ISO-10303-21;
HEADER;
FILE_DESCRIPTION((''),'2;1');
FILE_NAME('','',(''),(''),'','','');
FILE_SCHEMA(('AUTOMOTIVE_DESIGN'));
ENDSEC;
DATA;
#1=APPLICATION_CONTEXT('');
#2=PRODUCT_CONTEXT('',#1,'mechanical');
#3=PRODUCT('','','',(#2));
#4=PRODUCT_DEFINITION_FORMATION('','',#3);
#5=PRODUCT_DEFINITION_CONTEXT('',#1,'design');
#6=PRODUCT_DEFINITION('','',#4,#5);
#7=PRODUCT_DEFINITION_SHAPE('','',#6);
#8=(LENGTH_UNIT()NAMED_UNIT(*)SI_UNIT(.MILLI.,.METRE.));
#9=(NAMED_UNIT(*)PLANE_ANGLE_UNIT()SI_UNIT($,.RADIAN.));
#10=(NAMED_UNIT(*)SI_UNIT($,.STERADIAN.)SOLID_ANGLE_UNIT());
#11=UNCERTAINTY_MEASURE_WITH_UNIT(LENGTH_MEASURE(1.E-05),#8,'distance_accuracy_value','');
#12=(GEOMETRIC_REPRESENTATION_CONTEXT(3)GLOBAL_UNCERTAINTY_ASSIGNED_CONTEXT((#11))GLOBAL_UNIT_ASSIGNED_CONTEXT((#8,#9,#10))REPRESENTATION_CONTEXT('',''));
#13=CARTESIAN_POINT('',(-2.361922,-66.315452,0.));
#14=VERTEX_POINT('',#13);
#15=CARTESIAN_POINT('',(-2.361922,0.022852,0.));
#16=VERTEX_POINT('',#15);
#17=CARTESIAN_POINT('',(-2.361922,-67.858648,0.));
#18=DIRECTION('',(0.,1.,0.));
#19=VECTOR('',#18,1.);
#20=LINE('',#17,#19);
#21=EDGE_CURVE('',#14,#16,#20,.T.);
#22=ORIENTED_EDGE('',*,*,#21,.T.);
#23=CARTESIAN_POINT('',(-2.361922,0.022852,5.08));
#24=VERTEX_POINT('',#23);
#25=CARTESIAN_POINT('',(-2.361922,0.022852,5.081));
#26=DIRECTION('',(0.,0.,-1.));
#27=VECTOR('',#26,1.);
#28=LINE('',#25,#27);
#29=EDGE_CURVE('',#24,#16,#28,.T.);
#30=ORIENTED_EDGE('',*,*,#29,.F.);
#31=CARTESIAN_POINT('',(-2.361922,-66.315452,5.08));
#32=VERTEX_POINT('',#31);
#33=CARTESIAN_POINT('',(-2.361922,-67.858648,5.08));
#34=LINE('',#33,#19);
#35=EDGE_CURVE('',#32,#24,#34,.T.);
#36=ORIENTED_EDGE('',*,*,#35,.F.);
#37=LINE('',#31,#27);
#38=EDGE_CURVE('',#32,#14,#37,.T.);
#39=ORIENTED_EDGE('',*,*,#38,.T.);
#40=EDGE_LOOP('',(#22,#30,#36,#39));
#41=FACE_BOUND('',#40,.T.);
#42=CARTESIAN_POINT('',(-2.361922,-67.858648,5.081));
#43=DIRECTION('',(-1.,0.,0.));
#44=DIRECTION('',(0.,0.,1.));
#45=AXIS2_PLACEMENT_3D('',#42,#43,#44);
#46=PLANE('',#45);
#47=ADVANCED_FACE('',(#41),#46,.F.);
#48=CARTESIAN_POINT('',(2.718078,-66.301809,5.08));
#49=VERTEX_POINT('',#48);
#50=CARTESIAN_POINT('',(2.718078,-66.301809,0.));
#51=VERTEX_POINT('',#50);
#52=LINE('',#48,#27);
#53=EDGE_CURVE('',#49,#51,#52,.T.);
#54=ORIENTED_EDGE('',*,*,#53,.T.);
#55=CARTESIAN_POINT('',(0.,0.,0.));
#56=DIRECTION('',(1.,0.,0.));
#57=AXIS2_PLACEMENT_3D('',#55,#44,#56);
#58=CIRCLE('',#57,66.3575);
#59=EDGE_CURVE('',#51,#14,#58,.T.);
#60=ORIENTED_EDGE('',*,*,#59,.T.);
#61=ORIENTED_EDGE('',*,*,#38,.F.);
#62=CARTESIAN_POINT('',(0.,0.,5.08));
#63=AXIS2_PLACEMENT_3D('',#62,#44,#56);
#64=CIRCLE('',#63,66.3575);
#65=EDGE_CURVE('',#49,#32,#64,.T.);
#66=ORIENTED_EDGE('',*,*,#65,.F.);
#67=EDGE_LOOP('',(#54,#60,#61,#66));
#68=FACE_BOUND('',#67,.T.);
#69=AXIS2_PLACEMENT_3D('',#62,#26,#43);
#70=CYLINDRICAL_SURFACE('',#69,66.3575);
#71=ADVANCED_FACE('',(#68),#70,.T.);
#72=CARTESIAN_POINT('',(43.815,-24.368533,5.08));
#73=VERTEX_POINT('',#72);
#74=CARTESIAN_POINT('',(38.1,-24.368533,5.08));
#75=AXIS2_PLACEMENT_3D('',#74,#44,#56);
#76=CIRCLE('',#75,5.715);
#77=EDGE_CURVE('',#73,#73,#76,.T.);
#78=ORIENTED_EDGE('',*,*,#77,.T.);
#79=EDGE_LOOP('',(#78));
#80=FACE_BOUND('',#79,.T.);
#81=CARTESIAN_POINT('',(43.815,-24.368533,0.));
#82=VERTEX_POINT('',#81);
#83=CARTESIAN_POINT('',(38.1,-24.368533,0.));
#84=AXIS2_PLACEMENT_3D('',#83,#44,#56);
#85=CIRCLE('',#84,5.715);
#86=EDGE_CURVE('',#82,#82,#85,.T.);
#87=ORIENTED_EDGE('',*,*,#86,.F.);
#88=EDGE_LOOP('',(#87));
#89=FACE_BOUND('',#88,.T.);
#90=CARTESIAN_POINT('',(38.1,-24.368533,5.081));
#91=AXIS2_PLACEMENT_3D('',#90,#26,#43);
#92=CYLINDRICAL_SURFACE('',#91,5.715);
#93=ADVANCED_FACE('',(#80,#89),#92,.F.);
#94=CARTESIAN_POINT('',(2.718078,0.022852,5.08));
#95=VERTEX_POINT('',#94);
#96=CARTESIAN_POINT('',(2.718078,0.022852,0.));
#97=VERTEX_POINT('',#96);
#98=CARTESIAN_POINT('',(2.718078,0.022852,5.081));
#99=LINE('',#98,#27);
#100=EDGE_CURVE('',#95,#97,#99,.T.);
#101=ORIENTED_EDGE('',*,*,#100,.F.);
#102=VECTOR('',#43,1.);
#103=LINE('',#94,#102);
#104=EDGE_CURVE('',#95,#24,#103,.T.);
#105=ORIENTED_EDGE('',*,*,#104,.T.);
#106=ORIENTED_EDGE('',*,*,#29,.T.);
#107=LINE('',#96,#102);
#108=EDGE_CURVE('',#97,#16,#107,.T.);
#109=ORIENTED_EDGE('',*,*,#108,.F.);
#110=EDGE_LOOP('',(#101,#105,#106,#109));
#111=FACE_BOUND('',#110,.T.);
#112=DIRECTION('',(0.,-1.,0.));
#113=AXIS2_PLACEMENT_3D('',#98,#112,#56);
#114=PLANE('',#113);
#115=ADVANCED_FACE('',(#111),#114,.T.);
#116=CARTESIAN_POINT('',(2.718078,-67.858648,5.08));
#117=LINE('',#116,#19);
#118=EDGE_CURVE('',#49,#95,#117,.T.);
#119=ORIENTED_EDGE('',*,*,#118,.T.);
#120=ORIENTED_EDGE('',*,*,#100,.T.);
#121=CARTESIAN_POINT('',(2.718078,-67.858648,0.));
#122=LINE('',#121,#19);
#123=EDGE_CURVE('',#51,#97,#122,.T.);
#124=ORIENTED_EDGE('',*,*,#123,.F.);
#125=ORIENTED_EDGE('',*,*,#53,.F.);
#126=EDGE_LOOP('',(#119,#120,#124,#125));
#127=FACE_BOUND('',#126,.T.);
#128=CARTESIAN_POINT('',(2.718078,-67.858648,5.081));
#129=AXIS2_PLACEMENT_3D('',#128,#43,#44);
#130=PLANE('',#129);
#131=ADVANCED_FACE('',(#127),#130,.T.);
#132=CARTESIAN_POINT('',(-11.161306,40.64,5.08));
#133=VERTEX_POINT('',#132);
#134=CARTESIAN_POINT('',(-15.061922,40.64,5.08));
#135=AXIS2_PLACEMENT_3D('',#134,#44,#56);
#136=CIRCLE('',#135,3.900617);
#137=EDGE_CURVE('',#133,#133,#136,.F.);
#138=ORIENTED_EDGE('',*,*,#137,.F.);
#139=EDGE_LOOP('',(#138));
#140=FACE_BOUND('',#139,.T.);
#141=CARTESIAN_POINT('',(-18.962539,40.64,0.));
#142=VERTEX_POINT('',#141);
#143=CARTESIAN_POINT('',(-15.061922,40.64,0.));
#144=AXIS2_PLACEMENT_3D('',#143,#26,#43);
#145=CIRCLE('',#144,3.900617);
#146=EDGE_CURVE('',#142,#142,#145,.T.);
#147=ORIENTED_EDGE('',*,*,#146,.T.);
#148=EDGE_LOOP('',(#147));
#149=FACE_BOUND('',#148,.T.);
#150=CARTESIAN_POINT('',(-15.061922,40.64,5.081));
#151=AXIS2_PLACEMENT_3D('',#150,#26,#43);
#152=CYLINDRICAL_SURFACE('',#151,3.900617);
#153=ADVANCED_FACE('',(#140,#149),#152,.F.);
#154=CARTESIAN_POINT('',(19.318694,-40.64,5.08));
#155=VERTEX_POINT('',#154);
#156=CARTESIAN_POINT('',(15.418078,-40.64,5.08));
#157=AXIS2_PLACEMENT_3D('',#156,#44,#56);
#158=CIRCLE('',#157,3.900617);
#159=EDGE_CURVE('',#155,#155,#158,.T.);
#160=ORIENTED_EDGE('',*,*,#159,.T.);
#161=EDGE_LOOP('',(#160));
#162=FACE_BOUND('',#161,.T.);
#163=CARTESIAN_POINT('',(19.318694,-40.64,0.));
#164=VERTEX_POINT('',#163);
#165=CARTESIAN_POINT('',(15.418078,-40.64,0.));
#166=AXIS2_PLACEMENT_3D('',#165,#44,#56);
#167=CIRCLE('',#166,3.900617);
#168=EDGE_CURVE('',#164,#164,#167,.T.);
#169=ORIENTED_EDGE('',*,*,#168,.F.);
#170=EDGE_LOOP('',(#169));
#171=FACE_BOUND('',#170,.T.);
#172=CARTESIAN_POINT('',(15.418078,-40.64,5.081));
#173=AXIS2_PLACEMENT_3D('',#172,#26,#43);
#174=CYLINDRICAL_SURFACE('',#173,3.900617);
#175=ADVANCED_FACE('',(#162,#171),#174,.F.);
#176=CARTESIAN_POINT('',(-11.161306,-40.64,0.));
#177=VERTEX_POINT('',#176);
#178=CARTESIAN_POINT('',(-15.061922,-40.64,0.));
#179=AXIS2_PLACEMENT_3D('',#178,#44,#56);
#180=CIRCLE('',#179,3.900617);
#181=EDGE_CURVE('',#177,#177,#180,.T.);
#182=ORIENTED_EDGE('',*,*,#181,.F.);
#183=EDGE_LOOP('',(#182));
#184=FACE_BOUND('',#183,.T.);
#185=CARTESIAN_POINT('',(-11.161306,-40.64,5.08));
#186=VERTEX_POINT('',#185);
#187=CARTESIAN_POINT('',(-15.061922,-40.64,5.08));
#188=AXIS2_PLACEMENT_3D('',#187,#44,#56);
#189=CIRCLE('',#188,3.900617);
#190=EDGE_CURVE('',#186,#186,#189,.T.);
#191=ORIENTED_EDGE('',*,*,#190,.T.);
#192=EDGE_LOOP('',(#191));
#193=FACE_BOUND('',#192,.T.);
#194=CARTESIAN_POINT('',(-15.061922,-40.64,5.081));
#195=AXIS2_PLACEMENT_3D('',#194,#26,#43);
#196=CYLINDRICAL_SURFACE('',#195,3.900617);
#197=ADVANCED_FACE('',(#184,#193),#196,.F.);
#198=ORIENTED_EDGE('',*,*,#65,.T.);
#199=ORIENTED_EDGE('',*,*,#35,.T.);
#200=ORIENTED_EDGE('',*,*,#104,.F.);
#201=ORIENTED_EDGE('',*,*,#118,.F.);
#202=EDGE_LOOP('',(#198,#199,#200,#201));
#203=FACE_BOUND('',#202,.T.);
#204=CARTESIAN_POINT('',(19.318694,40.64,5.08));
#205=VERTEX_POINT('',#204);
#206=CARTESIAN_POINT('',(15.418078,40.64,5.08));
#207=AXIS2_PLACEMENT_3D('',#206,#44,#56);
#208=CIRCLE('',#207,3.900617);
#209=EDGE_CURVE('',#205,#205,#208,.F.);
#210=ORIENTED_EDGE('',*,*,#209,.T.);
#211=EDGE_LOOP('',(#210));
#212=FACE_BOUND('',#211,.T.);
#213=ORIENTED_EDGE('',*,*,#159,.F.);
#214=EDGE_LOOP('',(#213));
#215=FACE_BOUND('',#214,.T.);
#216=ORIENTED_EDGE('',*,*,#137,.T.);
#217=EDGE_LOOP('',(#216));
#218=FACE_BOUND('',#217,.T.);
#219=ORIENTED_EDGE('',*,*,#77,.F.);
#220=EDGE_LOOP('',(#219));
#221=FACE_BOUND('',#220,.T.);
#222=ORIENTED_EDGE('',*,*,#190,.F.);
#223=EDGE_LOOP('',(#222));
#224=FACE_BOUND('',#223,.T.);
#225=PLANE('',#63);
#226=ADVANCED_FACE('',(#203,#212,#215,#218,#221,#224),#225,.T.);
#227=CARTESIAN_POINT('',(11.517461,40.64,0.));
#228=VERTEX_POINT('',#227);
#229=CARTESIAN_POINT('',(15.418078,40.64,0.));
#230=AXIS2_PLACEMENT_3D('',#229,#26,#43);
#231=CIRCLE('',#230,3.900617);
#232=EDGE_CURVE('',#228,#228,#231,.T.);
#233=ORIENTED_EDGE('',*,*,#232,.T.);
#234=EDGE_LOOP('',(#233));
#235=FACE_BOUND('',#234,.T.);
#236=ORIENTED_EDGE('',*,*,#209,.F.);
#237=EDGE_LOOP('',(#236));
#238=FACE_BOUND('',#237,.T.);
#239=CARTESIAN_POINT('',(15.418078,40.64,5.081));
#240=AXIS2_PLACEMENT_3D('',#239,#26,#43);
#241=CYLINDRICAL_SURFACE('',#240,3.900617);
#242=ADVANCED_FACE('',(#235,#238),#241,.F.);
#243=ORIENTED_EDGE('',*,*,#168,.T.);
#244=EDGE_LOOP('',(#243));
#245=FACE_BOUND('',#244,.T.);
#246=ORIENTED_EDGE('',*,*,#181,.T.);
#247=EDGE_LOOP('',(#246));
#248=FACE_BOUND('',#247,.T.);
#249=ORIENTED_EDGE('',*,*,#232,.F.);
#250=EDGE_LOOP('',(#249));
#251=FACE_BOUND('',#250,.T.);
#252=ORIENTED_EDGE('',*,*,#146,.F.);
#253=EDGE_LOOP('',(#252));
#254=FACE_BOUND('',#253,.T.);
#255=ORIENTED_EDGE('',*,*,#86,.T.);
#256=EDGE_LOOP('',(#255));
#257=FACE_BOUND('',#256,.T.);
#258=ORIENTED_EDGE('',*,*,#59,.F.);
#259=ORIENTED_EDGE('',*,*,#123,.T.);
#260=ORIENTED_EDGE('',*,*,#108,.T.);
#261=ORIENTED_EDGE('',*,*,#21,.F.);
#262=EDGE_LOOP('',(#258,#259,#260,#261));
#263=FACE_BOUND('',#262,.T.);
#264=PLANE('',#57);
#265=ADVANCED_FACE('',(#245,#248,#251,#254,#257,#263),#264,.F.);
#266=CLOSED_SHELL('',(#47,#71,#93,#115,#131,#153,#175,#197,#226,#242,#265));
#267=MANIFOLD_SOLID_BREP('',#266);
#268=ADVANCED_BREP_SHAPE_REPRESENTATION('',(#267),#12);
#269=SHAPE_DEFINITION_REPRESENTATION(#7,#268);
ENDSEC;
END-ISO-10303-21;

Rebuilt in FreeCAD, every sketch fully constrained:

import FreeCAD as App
import Part
import Sketcher
Q = App.Units.Quantity

doc = App.newDocument("Part")
body = doc.addObject("PartDesign::Body", "Body")

# Sketch on XY plane
sketch1 = body.newObject("Sketcher::SketchObject", "Sketch")
sketch1.AttachmentSupport = (doc.getObject("XY_Plane"), [""])
sketch1.MapMode = "FlatFace"
sketch1.addGeometry(Part.Circle(App.Vector(0, 0, 0), App.Vector(0, 0, 1), 66.3575), False)
sketch1.addConstraint([
    Sketcher.Constraint("Coincident", 0, 3, -1, 1),
    Sketcher.Constraint("Diameter", 0, Q("5.225 in")),
])
pad1 = body.newObject("PartDesign::Pad", "Pad")
pad1.Profile = sketch1
pad1.Length = Q("0.2 in")

# Sketch on XY plane
sketch2 = body.newObject("Sketcher::SketchObject", "Sketch001")
sketch2.AttachmentSupport = (doc.getObject("XY_Plane"), [""])
sketch2.MapMode = "FlatFace"
sketch2.addGeometry(Part.Circle(App.Vector(-15.061922, -40.64, 0), App.Vector(0, 0, 1), 3.900617), False)
sketch2.addConstraint([
    Sketcher.Constraint("DistanceY", 0, 3, -1, 1, Q("1.6 in")),
    Sketcher.Constraint("Diameter", 0, 7.801234),
    Sketcher.Constraint("DistanceX", 0, 3, -1, 1, 15.061922),
])
pocket1 = body.newObject("PartDesign::Pocket", "Pocket")
pocket1.Profile = sketch2
pocket1.Type = "UpToFirst"
pocket1.Reversed = True

# Sketch on XY plane
sketch3 = body.newObject("Sketcher::SketchObject", "Sketch002")
sketch3.AttachmentSupport = (doc.getObject("XY_Plane"), [""])
sketch3.MapMode = "FlatFace"
sketch3.addGeometry(Part.Circle(App.Vector(15.418078, -40.64, 0), App.Vector(0, 0, 1), 3.900617), False)
sketch3.addConstraint([
    Sketcher.Constraint("DistanceY", 0, 3, -1, 1, Q("1.6 in")),
    Sketcher.Constraint("Diameter", 0, 7.801234),
    Sketcher.Constraint("DistanceX", -1, 1, 0, 3, 15.418078),
])
pocket2 = body.newObject("PartDesign::Pocket", "Pocket001")
pocket2.Profile = sketch3
pocket2.Type = "UpToFirst"
pocket2.Reversed = True

# Sketch on XY plane
sketch4 = body.newObject("Sketcher::SketchObject", "Sketch003")
sketch4.AttachmentSupport = (doc.getObject("XY_Plane"), [""])
sketch4.MapMode = "FlatFace"
sketch4.addGeometry(Part.Circle(App.Vector(15.418078, 40.64, 0), App.Vector(0, 0, 1), 3.900617), False)
sketch4.addConstraint([
    Sketcher.Constraint("DistanceY", -1, 1, 0, 3, Q("1.6 in")),
    Sketcher.Constraint("Diameter", 0, 7.801234),
    Sketcher.Constraint("DistanceX", -1, 1, 0, 3, 15.418078),
])
pocket3 = body.newObject("PartDesign::Pocket", "Pocket002")
pocket3.Profile = sketch4
pocket3.Type = "UpToFirst"
pocket3.Reversed = True

# Sketch on XY plane
sketch5 = body.newObject("Sketcher::SketchObject", "Sketch004")
sketch5.AttachmentSupport = (doc.getObject("XY_Plane"), [""])
sketch5.MapMode = "FlatFace"
sketch5.addGeometry(Part.Circle(App.Vector(-15.061922, 40.64, 0), App.Vector(0, 0, 1), 3.900617), False)
sketch5.addConstraint([
    Sketcher.Constraint("DistanceY", -1, 1, 0, 3, Q("1.6 in")),
    Sketcher.Constraint("Diameter", 0, 7.801234),
    Sketcher.Constraint("DistanceX", 0, 3, -1, 1, 15.061922),
])
pocket4 = body.newObject("PartDesign::Pocket", "Pocket003")
pocket4.Profile = sketch5
pocket4.Type = "UpToFirst"
pocket4.Reversed = True

# Sketch on XY plane
sketch6 = body.newObject("Sketcher::SketchObject", "Sketch005")
sketch6.AttachmentSupport = (doc.getObject("XY_Plane"), [""])
sketch6.MapMode = "FlatFace"
sketch6.addGeometry(Part.Circle(App.Vector(38.1, -24.368533, 0), App.Vector(0, 0, 1), 5.715), False)
sketch6.addConstraint([
    Sketcher.Constraint("Diameter", 0, Q("0.45 in")),
    Sketcher.Constraint("DistanceX", -1, 1, 0, 3, Q("1.5 in")),
    Sketcher.Constraint("DistanceY", 0, 3, -1, 1, 24.368533),
])
pocket5 = body.newObject("PartDesign::Pocket", "Pocket004")
pocket5.Profile = sketch6
pocket5.Type = "UpToFirst"
pocket5.Reversed = True

# Sketch on XY plane
sketch7 = body.newObject("Sketcher::SketchObject", "Sketch006")
sketch7.AttachmentSupport = (doc.getObject("XY_Plane"), [""])
sketch7.MapMode = "FlatFace"
sketch7.addGeometry([
    Part.LineSegment(App.Vector(-2.361922, 0.022852, 0), App.Vector(-2.361922, -67.858648, 0)),
    Part.LineSegment(App.Vector(-2.361922, -67.858648, 0), App.Vector(2.718078, -67.858648, 0)),
    Part.LineSegment(App.Vector(2.718078, -67.858648, 0), App.Vector(2.718078, 0.022852, 0)),
    Part.LineSegment(App.Vector(2.718078, 0.022852, 0), App.Vector(-2.361922, 0.022852, 0)),
], False)
sketch7.addConstraint([
    Sketcher.Constraint("Coincident", 0, 2, 1, 1),
    Sketcher.Constraint("Coincident", 1, 2, 2, 1),
    Sketcher.Constraint("Coincident", 2, 2, 3, 1),
    Sketcher.Constraint("Coincident", 3, 2, 0, 1),
    Sketcher.Constraint("Vertical", 0),
    Sketcher.Constraint("Horizontal", 1),
    Sketcher.Constraint("Vertical", 2),
    Sketcher.Constraint("Horizontal", 3),
    Sketcher.Constraint("DistanceX", 1, 1, 1, 2, Q("0.2 in")),
    Sketcher.Constraint("DistanceY", 0, 2, 0, 1, Q("2.6725 in")),
    Sketcher.Constraint("DistanceY", 0, 2, -1, 1, 67.858648),
    Sketcher.Constraint("DistanceX", 0, 2, -1, 1, 2.361922),
])
pocket6 = body.newObject("PartDesign::Pocket", "Pocket005")
pocket6.Profile = sketch7
pocket6.Type = "UpToFirst"
pocket6.Reversed = True

doc.recompute()
